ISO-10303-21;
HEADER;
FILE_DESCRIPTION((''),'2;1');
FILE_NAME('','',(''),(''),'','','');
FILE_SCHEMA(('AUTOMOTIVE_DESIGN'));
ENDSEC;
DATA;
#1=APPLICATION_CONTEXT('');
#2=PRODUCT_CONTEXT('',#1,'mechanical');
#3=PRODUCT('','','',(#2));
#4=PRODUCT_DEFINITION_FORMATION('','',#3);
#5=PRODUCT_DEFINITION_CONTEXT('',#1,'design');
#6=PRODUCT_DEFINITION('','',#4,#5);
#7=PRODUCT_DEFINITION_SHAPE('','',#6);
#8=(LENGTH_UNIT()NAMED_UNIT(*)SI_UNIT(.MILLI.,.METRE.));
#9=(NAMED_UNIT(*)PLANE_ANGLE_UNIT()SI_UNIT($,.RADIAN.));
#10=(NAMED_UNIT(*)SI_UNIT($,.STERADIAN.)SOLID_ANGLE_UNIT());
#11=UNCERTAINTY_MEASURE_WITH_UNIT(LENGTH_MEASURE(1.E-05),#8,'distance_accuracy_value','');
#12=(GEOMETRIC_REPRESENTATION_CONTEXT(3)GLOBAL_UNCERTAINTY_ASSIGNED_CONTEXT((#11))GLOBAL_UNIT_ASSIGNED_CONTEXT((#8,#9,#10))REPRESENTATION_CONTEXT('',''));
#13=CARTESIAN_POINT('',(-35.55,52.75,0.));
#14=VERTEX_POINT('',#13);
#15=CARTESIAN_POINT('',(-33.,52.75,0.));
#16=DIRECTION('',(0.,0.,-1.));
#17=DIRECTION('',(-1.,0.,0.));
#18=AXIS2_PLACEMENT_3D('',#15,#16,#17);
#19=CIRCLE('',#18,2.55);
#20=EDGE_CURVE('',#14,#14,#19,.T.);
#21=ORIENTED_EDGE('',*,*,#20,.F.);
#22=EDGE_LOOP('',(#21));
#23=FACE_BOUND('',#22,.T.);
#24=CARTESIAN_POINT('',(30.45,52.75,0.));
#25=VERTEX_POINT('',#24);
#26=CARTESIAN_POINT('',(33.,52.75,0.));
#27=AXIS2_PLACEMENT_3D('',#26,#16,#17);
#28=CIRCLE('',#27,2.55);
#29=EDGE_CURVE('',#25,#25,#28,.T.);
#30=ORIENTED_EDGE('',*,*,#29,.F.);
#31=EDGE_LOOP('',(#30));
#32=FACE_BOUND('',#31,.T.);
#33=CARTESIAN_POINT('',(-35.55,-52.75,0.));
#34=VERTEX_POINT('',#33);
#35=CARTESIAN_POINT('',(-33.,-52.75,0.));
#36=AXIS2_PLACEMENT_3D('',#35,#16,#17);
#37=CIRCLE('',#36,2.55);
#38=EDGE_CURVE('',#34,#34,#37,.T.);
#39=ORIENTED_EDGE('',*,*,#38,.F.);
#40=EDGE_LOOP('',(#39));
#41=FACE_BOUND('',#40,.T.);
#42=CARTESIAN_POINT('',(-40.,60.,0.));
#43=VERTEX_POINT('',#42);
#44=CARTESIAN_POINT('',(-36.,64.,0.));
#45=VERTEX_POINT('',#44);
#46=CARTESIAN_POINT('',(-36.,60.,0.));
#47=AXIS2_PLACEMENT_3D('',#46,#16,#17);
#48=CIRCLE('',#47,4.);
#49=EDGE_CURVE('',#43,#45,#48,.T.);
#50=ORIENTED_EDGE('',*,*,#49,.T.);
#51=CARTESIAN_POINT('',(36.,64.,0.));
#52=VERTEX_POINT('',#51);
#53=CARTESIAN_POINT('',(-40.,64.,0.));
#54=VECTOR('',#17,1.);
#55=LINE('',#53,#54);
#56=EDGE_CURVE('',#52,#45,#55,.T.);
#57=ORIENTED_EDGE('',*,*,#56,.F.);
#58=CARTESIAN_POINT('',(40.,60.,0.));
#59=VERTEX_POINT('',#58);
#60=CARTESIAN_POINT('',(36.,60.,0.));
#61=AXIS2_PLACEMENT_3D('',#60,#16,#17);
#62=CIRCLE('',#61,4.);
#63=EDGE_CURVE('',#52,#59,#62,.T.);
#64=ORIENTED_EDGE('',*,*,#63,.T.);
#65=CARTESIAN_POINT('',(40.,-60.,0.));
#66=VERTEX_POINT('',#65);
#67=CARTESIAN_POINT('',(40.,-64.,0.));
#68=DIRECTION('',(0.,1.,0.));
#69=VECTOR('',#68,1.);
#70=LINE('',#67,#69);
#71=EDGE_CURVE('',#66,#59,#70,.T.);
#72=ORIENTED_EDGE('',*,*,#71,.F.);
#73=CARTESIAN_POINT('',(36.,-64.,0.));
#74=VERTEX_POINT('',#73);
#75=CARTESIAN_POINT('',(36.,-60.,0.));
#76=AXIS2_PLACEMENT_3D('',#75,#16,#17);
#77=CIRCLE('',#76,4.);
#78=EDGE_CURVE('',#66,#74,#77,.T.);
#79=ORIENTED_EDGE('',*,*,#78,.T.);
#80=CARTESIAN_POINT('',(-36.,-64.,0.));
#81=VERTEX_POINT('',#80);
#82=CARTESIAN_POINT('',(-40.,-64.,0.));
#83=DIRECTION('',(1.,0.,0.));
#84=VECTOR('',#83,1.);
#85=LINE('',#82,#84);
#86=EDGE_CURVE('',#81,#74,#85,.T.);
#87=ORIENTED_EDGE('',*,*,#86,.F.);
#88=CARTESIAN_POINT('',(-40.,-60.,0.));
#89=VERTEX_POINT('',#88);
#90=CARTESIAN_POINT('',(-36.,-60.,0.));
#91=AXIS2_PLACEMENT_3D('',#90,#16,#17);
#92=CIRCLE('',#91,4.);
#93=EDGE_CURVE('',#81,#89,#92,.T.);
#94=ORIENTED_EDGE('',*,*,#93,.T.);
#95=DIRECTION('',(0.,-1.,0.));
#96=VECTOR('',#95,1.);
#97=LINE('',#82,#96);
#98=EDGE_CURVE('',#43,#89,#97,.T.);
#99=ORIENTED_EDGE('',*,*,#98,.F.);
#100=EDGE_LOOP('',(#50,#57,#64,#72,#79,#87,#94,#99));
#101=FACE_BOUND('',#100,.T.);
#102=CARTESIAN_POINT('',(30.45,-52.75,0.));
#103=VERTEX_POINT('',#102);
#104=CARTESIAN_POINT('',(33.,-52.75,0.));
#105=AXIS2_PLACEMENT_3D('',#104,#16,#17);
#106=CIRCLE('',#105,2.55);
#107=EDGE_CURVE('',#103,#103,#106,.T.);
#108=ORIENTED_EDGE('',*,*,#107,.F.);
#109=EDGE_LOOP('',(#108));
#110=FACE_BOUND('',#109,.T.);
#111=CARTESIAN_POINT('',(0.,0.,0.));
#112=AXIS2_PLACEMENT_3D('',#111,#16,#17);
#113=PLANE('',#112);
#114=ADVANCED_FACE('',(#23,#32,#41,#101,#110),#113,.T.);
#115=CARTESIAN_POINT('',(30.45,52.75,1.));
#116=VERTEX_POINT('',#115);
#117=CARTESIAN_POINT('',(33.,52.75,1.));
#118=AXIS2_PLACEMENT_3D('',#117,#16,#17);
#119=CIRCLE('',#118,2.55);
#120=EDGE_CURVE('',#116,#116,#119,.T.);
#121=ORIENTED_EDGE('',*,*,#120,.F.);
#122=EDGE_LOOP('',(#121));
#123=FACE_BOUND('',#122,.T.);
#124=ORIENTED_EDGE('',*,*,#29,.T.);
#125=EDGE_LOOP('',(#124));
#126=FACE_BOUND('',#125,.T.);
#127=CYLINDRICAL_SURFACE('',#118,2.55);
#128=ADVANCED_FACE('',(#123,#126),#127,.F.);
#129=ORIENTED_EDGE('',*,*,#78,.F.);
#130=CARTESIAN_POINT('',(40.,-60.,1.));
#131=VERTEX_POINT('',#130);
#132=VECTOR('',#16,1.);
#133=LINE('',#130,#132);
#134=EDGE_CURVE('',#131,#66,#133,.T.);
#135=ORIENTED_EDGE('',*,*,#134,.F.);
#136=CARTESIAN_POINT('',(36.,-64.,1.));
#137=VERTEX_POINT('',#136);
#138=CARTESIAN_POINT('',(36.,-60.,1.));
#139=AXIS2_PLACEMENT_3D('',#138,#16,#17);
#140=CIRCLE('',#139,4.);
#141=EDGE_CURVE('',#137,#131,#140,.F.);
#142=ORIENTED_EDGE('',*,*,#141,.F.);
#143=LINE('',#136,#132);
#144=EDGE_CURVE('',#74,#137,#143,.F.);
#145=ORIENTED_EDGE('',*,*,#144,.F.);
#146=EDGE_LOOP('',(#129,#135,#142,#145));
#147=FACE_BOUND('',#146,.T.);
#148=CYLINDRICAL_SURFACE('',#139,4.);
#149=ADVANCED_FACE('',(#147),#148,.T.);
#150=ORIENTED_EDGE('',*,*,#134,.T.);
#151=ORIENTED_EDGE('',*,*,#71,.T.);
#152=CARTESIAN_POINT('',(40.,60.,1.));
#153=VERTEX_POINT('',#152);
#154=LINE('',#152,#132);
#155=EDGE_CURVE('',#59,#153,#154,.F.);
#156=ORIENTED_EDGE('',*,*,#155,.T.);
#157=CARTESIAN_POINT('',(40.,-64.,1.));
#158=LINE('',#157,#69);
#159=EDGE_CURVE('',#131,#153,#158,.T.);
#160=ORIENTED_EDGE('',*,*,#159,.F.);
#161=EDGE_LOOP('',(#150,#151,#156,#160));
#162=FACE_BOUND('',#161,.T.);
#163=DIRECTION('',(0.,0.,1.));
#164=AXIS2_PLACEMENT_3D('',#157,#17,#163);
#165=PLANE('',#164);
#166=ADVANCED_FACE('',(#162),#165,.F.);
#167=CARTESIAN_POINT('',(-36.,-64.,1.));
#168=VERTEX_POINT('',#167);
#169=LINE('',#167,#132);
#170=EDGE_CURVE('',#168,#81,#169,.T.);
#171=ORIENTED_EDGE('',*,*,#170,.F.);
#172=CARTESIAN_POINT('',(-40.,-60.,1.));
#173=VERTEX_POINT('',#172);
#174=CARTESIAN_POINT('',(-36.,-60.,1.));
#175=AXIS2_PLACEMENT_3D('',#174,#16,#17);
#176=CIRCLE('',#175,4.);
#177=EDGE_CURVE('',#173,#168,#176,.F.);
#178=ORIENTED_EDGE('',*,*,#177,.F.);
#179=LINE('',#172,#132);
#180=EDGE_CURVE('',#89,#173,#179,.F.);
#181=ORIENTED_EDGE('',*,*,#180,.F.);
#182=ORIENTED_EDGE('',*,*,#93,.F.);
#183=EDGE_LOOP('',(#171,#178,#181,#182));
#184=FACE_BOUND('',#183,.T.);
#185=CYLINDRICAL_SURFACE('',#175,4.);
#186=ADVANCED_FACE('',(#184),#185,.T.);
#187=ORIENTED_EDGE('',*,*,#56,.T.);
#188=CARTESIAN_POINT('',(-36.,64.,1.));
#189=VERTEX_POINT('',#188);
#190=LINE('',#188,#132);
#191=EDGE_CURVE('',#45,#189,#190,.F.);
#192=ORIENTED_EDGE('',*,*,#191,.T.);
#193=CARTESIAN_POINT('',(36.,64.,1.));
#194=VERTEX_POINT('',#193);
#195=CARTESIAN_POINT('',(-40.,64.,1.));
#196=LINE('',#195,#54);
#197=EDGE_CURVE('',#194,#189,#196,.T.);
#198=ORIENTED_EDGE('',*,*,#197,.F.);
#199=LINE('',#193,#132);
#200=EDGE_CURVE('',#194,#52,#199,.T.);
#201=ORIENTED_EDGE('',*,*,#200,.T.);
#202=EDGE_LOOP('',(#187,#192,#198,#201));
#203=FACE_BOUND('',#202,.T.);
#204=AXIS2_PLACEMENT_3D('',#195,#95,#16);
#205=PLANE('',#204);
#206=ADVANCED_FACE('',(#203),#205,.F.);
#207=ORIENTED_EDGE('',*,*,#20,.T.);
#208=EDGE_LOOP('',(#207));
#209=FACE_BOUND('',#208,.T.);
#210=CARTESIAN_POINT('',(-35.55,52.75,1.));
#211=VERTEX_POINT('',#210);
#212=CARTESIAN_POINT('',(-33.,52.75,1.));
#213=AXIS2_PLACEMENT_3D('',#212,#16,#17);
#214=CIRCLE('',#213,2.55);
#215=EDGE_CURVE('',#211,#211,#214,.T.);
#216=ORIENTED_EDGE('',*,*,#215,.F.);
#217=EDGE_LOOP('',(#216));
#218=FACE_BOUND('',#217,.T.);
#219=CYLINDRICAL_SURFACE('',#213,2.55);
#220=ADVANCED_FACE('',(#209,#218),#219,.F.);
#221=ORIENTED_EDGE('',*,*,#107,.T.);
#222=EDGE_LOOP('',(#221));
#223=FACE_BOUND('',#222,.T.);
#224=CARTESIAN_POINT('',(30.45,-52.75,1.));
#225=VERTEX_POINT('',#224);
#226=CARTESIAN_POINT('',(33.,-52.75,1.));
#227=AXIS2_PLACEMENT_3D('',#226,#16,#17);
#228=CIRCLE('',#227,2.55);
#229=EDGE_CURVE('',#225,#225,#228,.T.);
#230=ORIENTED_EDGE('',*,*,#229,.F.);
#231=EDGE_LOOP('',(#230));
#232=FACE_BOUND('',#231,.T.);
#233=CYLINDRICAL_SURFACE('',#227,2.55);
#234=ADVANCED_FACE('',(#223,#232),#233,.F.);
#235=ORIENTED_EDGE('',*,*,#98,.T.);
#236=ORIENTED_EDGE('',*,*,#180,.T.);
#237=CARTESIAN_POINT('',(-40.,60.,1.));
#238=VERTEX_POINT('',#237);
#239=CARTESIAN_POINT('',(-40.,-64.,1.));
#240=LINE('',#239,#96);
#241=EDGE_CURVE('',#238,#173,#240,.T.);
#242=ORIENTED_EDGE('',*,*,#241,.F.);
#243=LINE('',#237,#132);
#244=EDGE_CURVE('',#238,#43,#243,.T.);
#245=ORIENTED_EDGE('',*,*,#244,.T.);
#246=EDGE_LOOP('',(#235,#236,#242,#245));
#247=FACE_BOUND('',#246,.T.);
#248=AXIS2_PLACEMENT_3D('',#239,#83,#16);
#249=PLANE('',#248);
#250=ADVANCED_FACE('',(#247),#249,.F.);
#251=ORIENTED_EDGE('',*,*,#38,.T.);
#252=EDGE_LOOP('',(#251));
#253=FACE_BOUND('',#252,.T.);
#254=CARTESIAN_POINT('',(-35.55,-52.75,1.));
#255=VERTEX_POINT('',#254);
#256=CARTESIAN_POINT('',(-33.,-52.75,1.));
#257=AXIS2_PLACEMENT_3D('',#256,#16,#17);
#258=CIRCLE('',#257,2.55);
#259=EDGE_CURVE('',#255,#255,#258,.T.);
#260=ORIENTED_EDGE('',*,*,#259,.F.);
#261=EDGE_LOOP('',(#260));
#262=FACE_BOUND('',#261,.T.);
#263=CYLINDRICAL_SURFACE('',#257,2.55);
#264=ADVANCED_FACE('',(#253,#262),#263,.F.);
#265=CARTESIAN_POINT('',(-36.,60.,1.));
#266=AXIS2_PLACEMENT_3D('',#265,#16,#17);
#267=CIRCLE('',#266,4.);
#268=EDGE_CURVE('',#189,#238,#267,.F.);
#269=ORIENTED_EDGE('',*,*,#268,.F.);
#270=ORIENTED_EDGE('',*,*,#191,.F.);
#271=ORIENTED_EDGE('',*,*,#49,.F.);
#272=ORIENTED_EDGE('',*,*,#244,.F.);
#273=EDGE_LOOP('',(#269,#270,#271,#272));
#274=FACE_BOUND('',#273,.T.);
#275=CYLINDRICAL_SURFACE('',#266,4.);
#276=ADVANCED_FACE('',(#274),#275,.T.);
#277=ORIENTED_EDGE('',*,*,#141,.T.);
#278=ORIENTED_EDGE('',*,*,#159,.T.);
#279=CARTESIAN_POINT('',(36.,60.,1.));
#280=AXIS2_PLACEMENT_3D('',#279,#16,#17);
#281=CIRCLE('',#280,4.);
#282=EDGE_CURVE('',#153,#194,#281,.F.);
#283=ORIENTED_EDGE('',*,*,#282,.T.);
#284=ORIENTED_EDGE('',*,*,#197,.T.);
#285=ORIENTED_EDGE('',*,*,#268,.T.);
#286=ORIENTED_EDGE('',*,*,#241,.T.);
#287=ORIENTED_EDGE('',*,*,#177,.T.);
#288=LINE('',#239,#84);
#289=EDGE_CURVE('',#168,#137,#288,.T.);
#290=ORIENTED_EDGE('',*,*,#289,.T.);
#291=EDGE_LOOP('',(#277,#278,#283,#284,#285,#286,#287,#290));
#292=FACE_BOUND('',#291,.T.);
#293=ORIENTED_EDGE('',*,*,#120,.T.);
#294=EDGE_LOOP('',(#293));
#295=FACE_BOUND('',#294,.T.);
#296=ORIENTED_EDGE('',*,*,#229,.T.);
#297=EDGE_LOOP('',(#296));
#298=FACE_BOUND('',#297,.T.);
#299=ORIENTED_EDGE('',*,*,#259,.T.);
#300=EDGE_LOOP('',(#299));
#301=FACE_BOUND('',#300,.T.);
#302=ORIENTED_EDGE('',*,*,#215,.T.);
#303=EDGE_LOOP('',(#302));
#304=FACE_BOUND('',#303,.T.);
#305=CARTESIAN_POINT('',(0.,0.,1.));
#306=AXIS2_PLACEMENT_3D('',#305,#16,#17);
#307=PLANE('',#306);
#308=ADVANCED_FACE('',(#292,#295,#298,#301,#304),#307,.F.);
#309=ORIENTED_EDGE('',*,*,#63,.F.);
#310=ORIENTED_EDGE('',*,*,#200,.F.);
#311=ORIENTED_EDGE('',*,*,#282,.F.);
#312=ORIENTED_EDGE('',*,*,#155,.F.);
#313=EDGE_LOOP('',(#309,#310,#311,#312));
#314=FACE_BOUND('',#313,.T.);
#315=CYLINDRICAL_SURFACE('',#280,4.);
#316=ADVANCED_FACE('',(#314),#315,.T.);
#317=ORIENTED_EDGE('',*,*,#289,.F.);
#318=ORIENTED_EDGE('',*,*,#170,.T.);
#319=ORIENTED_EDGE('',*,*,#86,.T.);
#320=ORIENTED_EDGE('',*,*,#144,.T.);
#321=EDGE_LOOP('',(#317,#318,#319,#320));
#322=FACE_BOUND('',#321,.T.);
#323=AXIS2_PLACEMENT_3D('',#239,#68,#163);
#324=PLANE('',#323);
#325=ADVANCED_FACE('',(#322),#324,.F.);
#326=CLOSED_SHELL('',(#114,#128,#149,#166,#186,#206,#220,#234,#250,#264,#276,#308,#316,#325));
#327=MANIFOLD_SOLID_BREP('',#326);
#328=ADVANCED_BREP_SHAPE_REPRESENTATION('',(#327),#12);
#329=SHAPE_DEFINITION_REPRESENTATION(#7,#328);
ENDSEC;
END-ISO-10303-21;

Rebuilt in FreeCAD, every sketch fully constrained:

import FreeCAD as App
import Part
import Sketcher
Q = App.Units.Quantity


def edges_at(feature, points):
    """Names of the edges that pass closest to the given points."""
    edges = feature.Shape.Edges
    near = lambda p: min(range(len(edges)), key=lambda i: edges[i].distToShape(Part.Vertex(*p))[0])
    return sorted({f"Edge{near(p) + 1}" for p in points})

doc = App.newDocument("Part")
body = doc.addObject("PartDesign::Body", "Body")

sketch1 = body.newObject("Sketcher::SketchObject", "Sketch")
sketch1.AttachmentSupport = (doc.getObject("XY_Plane"), [""])
sketch1.MapMode = "FlatFace"
sketch1.addGeometry([
    Part.LineSegment(App.Vector(-40, 64, 0), App.Vector(-40, -64, 0)),
    Part.LineSegment(App.Vector(-40, -64, 0), App.Vector(40, -64, 0)),
    Part.LineSegment(App.Vector(40, -64, 0), App.Vector(40, 64, 0)),
    Part.LineSegment(App.Vector(40, 64, 0), App.Vector(-40, 64, 0)),
], False)
sketch1.addConstraint([
    Sketcher.Constraint("Coincident", 0, 2, 1, 1),
    Sketcher.Constraint("Coincident", 1, 2, 2, 1),
    Sketcher.Constraint("Coincident", 2, 2, 3, 1),
    Sketcher.Constraint("Coincident", 3, 2, 0, 1),
    Sketcher.Constraint("Vertical", 0),
    Sketcher.Constraint("Horizontal", 1),
    Sketcher.Constraint("Vertical", 2),
    Sketcher.Constraint("Horizontal", 3),
    Sketcher.Constraint("Symmetric", 0, 2, 2, 2, -1, 1),
    Sketcher.Constraint("DistanceX", 1, 1, 1, 2, Q("80 mm")),
    Sketcher.Constraint("DistanceY", 0, 2, 0, 1, Q("128 mm")),
])
pad1 = body.newObject("PartDesign::Pad", "Pad")
pad1.Profile = sketch1
pad1.Length = 1
doc.recompute()

fillet = body.newObject("PartDesign::Fillet", "Fillet")
fillet.Base = (pad1, edges_at(pad1, [
    (40, -64, 0.5),
    (-40, -64, 0.5),
    (-40, 64, 0.5),
    (40, 64, 0.5),
]))
fillet.Radius = 4

sketch2 = body.newObject("Sketcher::SketchObject", "Sketch001")
sketch2.AttachmentSupport = (doc.getObject("XY_Plane"), [""])
sketch2.MapMode = "FlatFace"
sketch2.addGeometry([
    Part.Circle(App.Vector(33, -52.75, 0), App.Vector(0, 0, 1), 2.55),
    Part.Circle(App.Vector(33, 52.75, 0), App.Vector(0, 0, 1), 2.55),
    Part.Circle(App.Vector(-33, 52.75, 0), App.Vector(0, 0, 1), 2.55),
    Part.Circle(App.Vector(-33, -52.75, 0), App.Vector(0, 0, 1), 2.55),
], False)
sketch2.addConstraint([
    Sketcher.Constraint("Equal", 0, 1),
    Sketcher.Constraint("Equal", 1, 2),
    Sketcher.Constraint("Equal", 2, 3),
    Sketcher.Constraint("Symmetric", 0, 3, 2, 3, -1, 1),
    Sketcher.Constraint("Symmetric", 1, 3, 3, 3, -1, 1),
    Sketcher.Constraint("Symmetric", 1, 3, 2, 3, -2),
    Sketcher.Constraint("Diameter", 0, Q("5.1 mm")),
    Sketcher.Constraint("DistanceX", -1, 1, 0, 3, Q("33 mm")),
    Sketcher.Constraint("DistanceY", 0, 3, 1, 3, Q("105.5 mm")),
])
pocket1 = body.newObject("PartDesign::Pocket", "Pocket")
pocket1.Profile = sketch2
pocket1.Type = "ThroughAll"
pocket1.Reversed = True

doc.recompute()
